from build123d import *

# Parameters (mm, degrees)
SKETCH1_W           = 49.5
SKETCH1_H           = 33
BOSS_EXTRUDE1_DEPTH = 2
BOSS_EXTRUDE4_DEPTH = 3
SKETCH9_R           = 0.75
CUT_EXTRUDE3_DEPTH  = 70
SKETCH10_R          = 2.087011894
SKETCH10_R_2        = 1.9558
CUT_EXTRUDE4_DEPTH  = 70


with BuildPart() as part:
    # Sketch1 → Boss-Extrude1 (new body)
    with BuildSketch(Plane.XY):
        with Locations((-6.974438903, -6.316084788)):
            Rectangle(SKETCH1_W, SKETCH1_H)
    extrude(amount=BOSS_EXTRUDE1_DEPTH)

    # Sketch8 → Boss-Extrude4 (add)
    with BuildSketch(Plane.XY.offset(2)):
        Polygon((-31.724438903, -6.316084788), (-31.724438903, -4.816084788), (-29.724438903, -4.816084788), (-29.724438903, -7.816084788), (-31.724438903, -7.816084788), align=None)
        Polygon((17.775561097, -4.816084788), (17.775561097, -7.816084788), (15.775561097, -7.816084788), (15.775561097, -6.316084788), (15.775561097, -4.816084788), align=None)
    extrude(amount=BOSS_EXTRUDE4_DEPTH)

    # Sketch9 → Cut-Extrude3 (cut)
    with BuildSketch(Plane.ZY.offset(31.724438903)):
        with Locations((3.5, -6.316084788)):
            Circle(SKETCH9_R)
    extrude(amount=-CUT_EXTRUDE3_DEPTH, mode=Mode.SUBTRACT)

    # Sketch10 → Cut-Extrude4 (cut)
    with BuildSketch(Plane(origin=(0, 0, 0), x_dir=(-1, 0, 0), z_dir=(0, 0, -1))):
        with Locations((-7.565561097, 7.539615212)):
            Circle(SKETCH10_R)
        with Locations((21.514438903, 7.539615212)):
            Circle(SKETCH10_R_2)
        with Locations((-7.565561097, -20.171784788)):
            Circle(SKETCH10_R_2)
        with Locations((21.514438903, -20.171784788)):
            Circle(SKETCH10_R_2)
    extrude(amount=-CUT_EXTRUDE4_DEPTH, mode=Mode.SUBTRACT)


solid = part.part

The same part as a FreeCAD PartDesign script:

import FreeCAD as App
import Part
import Sketcher

V = App.Vector


def add_polygon(sketch, points):
    """Adds a closed chain of lines whose ends are joined by coincident constraints."""
    first, n = sketch.GeometryCount, len(points)
    for a, b in zip(points, points[1:] + points[:1]):
        sketch.addGeometry(Part.LineSegment(App.Vector(*a, 0), App.Vector(*b, 0)), False)
    for i in range(n):
        sketch.addConstraint(Sketcher.Constraint("Coincident", first + i, 2, first + (i + 1) % n, 1))

doc = App.newDocument("Part")
params = doc.addObject("Spreadsheet::Sheet", "Params")
for row, (alias, value) in enumerate([
    ("sketch1_height", "33 mm"),
    ("sketch1_width", "49.5 mm"),
    ("pad1_length", "2 mm"),
    ("sketch2_width", "2 mm"),
    ("sketch2_height", "3 mm"),
    ("pad2_length", "3 mm"),
    ("sketch3_diameter", "1.5 mm"),
    ("pocket1_length", "70 mm"),
    ("pocket2_length", "70 mm"),
], start=1):
    params.set(f"A{row}", alias)
    params.set(f"B{row}", "=" + value)
    params.setAlias(f"B{row}", alias)

body = doc.addObject("PartDesign::Body", "Body")

# Sketch on XY plane
sketch1 = body.newObject("Sketcher::SketchObject", "Sketch")
sketch1.AttachmentSupport = (doc.getObject("XY_Plane"), [""])
sketch1.MapMode = "FlatFace"
add_polygon(sketch1, [(-31.724439, 10.183915), (-31.724439, -22.816085), (17.775561, -22.816085), (17.775561, 10.183915)])  # lines 0-3
sketch1.addConstraint([
    Sketcher.Constraint("Vertical", 0),
    Sketcher.Constraint("Horizontal", 1),
    Sketcher.Constraint("Vertical", 2),
    Sketcher.Constraint("Horizontal", 3),
    Sketcher.Constraint("DistanceY", 0, 2, 0, 1, 33.0),
    Sketcher.Constraint("DistanceX", 1, 1, 1, 2, 49.5),
    Sketcher.Constraint("DistanceX", 0, 2, -1, 1, 31.724439),
    Sketcher.Constraint("DistanceY", 0, 2, -1, 1, 22.816085),
])
sketch1.setExpression("Constraints[8]", "Params.sketch1_height")
sketch1.setExpression("Constraints[9]", "Params.sketch1_width")
pad1 = body.newObject("PartDesign::Pad", "Pad")
pad1.Profile = sketch1
pad1.setExpression("Length", "Params.pad1_length")

# Sketch on XY plane
sketch2 = body.newObject("Sketcher::SketchObject", "Sketch001")
sketch2.AttachmentSupport = (doc.getObject("XY_Plane"), [""])
sketch2.MapMode = "FlatFace"
sketch2.AttachmentOffset = App.Placement(V(0, 0, 2), App.Rotation())
add_polygon(sketch2, [(-31.724439, -4.816085), (-31.724439, -7.816085), (-29.724439, -7.816085), (-29.724439, -4.816085)])  # lines 0-3
add_polygon(sketch2, [(17.775561, -7.816085), (17.775561, -4.816085), (15.775561, -4.816085), (15.775561, -7.816085)])  # lines 4-7
sketch2.addConstraint([
    Sketcher.Constraint("Vertical", 0),
    Sketcher.Constraint("Horizontal", 1),
    Sketcher.Constraint("Vertical", 2),
    Sketcher.Constraint("Horizontal", 3),
    Sketcher.Constraint("Vertical", 4),
    Sketcher.Constraint("Horizontal", 5),
    Sketcher.Constraint("Vertical", 6),
    Sketcher.Constraint("Horizontal", 7),
    Sketcher.Constraint("Horizontal", 3, 2, 4, 2),
    Sketcher.Constraint("Horizontal", 1, 2, 6, 2),
    Sketcher.Constraint("Equal", 3, 5),
    Sketcher.Constraint("DistanceX", 1, 1, 1, 2, 2.0),
    Sketcher.Constraint("DistanceY", 0, 2, 0, 1, 3.0),
    Sketcher.Constraint("DistanceX", 2, 2, 4, 2, 47.5),
    Sketcher.Constraint("DistanceX", 0, 2, -1, 1, 31.724439),
    Sketcher.Constraint("DistanceY", 0, 2, -1, 1, 7.816085),
])
sketch2.setExpression("Constraints[19]", "Params.sketch2_width")
sketch2.setExpression("Constraints[20]", "Params.sketch2_height")
pad2 = body.newObject("PartDesign::Pad", "Pad001")
pad2.Profile = sketch2
pad2.setExpression("Length", "Params.pad2_length")

# Sketch on YZ plane
sketch3 = body.newObject("Sketcher::SketchObject", "Sketch002")
sketch3.AttachmentSupport = (doc.getObject("YZ_Plane"), [""])
sketch3.MapMode = "FlatFace"
sketch3.AttachmentOffset = App.Placement(V(0, 0, -31.724439), App.Rotation())
sketch3.addGeometry(Part.Circle(V(-6.316085, 3.5, 0), V(0, 0, 1), 0.75), False)
sketch3.addConstraint([
    Sketcher.Constraint("Diameter", 0, 1.5),
    Sketcher.Constraint("DistanceY", -1, 1, 0, 3, 3.5),
    Sketcher.Constraint("DistanceX", 0, 3, -1, 1, 6.316085),
])
sketch3.setExpression("Constraints[0]", "Params.sketch3_diameter")
pocket1 = body.newObject("PartDesign::Pocket", "Pocket")
pocket1.Profile = sketch3
pocket1.setExpression("Length", "Params.pocket1_length")
pocket1.Reversed = True

# Sketch on XY plane
sketch4 = body.newObject("Sketcher::SketchObject", "Sketch003")
sketch4.AttachmentSupport = (doc.getObject("XY_Plane"), [""])
sketch4.MapMode = "FlatFace"
sketch4.addGeometry([
    Part.Circle(V(7.565561, 7.539615, 0), V(0, 0, 1), 2.087012),
    Part.Circle(V(-21.514439, 7.539615, 0), V(0, 0, 1), 1.9558),
    Part.Circle(V(7.565561, -20.171785, 0), V(0, 0, 1), 1.9558),
    Part.Circle(V(-21.514439, -20.171785, 0), V(0, 0, 1), 1.9558),
], False)
sketch4.addConstraint([
    Sketcher.Constraint("Equal", 1, 2),
    Sketcher.Constraint("Equal", 2, 3),
    Sketcher.Constraint("Horizontal", 0, 3, 1, 3),
    Sketcher.Constraint("Horizontal", 2, 3, 3, 3),
    Sketcher.Constraint("Vertical", 0, 3, 2, 3),
    Sketcher.Constraint("Vertical", 1, 3, 3, 3),
    Sketcher.Constraint("Diameter", 1, 3.9116),
    Sketcher.Constraint("DistanceX", 1, 3, 0, 3, 29.08),
    Sketcher.Constraint("Diameter", 0, 4.174024),
    Sketcher.Constraint("DistanceY", 2, 3, 0, 3, 27.7114),
    Sketcher.Constraint("DistanceX", -1, 1, 0, 3, 7.565561),
    Sketcher.Constraint("DistanceY", -1, 1, 0, 3, 7.539615),
])
pocket2 = body.newObject("PartDesign::Pocket", "Pocket001")
pocket2.Profile = sketch4
pocket2.setExpression("Length", "Params.pocket2_length")
pocket2.Reversed = True

doc.recompute()
